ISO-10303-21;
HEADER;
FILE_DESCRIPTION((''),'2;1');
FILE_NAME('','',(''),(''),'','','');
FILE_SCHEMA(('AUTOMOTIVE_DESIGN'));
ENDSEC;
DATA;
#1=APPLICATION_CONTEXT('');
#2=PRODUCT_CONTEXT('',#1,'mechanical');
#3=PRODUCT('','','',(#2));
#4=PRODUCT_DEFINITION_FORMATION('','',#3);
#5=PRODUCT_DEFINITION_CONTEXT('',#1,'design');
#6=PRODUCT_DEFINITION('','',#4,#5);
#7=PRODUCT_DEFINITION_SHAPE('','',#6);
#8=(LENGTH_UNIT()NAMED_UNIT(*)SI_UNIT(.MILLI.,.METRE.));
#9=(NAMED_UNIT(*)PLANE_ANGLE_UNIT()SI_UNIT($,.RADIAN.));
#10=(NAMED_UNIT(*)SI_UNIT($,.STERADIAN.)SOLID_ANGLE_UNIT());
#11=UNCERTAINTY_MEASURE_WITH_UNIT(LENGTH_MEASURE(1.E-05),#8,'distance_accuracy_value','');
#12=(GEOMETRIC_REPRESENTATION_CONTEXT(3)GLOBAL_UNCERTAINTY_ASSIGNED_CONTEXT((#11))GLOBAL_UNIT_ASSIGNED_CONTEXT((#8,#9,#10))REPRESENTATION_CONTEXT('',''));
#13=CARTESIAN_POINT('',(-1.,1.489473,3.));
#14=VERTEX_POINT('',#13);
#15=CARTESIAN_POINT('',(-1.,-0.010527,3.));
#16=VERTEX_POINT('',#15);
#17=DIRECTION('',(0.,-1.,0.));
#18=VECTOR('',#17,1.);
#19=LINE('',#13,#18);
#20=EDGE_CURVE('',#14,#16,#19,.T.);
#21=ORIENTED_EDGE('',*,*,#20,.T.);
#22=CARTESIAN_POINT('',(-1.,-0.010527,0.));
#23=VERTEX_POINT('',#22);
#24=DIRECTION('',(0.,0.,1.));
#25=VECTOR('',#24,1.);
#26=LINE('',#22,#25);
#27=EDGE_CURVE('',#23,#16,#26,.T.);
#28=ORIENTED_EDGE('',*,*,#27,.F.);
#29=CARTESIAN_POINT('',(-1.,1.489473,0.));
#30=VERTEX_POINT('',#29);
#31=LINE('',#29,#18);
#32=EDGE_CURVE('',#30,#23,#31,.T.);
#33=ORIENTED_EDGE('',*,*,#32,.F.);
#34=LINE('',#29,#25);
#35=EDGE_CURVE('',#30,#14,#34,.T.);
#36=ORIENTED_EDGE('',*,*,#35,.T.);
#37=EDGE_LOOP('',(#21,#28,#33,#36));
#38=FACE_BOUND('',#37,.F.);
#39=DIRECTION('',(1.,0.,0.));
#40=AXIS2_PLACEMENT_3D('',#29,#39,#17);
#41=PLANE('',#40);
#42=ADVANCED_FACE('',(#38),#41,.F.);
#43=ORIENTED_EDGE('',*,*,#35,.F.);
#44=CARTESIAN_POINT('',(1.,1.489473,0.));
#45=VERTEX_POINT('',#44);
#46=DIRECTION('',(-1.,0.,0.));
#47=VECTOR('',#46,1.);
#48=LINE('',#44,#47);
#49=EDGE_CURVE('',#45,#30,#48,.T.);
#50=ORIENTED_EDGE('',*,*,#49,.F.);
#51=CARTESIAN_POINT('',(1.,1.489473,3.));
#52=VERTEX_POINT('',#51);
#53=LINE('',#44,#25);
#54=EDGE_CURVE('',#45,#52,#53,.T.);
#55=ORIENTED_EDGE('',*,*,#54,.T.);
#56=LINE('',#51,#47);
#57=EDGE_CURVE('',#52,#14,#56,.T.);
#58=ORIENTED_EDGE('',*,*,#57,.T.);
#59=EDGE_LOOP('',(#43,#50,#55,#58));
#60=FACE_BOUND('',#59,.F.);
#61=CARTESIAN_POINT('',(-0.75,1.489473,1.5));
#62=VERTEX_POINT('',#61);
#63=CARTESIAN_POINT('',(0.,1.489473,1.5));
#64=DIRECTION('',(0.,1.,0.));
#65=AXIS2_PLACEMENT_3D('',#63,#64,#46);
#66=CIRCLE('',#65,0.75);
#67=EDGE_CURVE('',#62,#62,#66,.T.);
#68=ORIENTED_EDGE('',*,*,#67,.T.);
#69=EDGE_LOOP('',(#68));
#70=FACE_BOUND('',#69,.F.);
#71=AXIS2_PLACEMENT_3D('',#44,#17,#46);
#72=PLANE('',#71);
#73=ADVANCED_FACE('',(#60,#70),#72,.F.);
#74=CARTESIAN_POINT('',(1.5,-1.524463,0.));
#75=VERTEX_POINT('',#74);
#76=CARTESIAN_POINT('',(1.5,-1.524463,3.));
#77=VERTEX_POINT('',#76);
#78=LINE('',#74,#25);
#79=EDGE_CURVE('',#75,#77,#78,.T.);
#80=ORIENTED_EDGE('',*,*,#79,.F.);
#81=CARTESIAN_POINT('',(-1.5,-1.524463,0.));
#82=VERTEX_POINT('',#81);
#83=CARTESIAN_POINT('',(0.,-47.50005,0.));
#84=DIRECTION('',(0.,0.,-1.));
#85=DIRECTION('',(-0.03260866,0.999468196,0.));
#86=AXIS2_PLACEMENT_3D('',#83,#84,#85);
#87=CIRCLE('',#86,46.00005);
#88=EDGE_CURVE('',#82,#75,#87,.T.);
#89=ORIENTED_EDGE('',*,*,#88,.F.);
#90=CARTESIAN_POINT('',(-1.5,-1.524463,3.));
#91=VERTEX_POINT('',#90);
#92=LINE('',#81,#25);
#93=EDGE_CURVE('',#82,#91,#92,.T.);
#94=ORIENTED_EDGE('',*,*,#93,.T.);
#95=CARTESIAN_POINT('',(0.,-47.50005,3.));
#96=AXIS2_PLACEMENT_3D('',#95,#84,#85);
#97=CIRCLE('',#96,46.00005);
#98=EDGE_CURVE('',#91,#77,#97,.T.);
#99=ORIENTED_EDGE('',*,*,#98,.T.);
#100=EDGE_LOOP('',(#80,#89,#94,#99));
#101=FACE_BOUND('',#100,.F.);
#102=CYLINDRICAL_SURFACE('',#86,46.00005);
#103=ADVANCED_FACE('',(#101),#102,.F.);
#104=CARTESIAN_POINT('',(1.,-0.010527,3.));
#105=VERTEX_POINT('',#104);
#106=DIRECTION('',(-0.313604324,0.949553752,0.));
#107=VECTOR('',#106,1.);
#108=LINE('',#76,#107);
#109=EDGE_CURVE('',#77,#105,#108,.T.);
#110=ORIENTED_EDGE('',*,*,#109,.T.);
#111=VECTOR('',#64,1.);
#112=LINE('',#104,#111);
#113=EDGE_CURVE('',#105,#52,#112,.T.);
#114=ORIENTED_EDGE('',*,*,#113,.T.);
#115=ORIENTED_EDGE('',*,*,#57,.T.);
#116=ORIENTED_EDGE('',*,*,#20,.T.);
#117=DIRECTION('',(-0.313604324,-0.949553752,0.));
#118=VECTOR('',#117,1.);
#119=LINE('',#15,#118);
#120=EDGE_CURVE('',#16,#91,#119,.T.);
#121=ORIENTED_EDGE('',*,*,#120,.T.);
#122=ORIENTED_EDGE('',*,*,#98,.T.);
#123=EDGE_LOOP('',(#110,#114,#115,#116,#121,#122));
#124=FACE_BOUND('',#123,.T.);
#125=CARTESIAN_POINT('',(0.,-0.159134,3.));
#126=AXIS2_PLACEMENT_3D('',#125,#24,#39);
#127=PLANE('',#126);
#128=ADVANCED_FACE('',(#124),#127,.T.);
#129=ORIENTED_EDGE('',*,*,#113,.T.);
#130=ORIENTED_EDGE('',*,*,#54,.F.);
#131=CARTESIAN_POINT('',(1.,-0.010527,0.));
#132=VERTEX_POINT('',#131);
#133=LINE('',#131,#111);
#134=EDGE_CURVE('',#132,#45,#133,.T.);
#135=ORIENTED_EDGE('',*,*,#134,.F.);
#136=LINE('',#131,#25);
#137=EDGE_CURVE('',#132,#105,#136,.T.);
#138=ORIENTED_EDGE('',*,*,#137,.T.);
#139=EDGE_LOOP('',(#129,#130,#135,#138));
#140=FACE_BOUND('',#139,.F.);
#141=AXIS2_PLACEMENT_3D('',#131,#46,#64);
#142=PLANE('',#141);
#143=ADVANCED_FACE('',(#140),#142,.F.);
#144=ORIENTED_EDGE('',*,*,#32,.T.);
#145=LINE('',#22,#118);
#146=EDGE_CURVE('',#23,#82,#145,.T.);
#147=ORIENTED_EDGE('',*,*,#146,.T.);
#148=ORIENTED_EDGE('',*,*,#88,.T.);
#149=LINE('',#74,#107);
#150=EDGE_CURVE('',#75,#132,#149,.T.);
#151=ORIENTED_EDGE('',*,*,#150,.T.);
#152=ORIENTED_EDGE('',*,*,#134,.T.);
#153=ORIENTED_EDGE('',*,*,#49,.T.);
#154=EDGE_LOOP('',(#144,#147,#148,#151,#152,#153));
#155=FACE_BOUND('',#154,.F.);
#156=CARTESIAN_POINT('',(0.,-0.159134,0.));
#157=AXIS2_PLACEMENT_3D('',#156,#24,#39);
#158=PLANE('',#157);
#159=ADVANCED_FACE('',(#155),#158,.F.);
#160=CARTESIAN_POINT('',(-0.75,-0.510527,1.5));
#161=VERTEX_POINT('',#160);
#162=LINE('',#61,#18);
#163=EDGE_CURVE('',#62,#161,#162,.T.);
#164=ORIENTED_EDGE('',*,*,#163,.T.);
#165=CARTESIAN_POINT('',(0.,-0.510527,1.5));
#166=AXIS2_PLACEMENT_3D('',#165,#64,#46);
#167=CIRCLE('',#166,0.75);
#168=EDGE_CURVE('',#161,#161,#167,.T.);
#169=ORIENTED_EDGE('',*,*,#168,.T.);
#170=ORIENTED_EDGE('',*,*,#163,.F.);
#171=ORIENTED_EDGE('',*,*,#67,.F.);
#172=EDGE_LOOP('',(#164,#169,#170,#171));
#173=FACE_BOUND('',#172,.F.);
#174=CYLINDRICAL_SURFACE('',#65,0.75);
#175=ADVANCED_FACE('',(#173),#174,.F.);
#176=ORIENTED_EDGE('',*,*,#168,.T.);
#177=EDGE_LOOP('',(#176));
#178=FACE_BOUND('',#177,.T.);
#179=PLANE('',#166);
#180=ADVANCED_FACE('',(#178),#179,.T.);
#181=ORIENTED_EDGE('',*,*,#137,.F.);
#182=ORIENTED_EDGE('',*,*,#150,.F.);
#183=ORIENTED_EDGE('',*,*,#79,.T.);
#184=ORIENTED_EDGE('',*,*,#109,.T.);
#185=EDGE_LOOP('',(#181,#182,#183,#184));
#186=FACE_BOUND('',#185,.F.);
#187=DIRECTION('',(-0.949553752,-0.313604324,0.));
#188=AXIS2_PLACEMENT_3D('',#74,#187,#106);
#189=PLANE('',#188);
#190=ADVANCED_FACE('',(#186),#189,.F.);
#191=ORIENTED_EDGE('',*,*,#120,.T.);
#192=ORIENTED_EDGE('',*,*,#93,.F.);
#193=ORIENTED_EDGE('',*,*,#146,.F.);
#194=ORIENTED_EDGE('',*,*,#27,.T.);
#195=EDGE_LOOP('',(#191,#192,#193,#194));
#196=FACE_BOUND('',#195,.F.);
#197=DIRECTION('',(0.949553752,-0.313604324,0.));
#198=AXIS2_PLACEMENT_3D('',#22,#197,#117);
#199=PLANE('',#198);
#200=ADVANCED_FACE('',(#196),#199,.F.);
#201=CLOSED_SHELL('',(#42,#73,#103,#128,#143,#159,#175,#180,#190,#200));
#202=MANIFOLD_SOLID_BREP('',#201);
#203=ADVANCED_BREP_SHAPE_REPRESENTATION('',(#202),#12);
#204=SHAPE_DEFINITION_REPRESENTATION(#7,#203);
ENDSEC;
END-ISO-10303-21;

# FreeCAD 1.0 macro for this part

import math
import FreeCAD as App
import Part
import Sketcher

V = App.Vector
Q = App.Units.Quantity

doc = App.newDocument("Part")
body = doc.addObject("PartDesign::Body", "Body")

sketch1 = body.newObject("Sketcher::SketchObject", "Sketch")
sketch1.AttachmentSupport = (doc.getObject("XY_Plane"), [""])
sketch1.MapMode = "FlatFace"
sketch1.addGeometry(Part.LineSegment(V(-1, 0, 0), V(-1.5, -1.5, 0)), False)
sketch1.addGeometry(Part.ArcOfCircle(Part.Circle(V(0, -47.5, 0), V(0, 0, 1), 46), math.radians(88.13), math.radians(91.87)), False)
sketch1.addGeometry(Part.LineSegment(V(1.5, -1.5, 0), V(1, 0, 0)), False)
sketch1.addGeometry(Part.LineSegment(V(1, 0, 0), V(1, 1.5, 0)), False)
sketch1.addGeometry(Part.LineSegment(V(1, 1.5, 0), V(-1, 1.5, 0)), False)
sketch1.addGeometry(Part.LineSegment(V(-1, 1.5, 0), V(-1, 0, 0)), False)
sketch1.addConstraint(Sketcher.Constraint("Coincident", 0, 2, 1, 2))
sketch1.addConstraint(Sketcher.Constraint("Coincident", 1, 1, 2, 1))
sketch1.addConstraint(Sketcher.Constraint("Coincident", 2, 2, 3, 1))
sketch1.addConstraint(Sketcher.Constraint("Coincident", 3, 2, 4, 1))
sketch1.addConstraint(Sketcher.Constraint("Coincident", 4, 2, 5, 1))
sketch1.addConstraint(Sketcher.Constraint("Coincident", 5, 2, 0, 1))
sketch1.addConstraint(Sketcher.Constraint("Vertical", 3))
sketch1.addConstraint(Sketcher.Constraint("Horizontal", 4))
sketch1.addConstraint(Sketcher.Constraint("Vertical", 5))
sketch1.addConstraint(Sketcher.Constraint("Symmetric", 0, 2, 1, 1, -2))
sketch1.addConstraint(Sketcher.Constraint("Symmetric", 2, 2, 5, 2, -2))
sketch1.addConstraint(Sketcher.Constraint("DistanceX", 4, 2, 4, 1, Q("2 mm")))
sketch1.addConstraint(Sketcher.Constraint("DistanceY", 3, 1, 3, 2, Q("1.5 mm")))
sketch1.addConstraint(Sketcher.Constraint("DistanceX", 0, 2, 1, 1, Q("3 mm")))
sketch1.addConstraint(Sketcher.Constraint("Radius", 1, Q("46.00005 mm")))
sketch1.addConstraint(Sketcher.Constraint("DistanceY", 1, 3, -1, 1, Q("47.50005 mm")))
sketch1.addConstraint(Sketcher.Constraint("Distance", 0, Q("1.594366 mm")))
pad1 = body.newObject("PartDesign::Pad", "Pad")
pad1.Profile = sketch1
pad1.Length = 3

sketch2 = body.newObject("Sketcher::SketchObject", "Sketch001")
sketch2.AttachmentSupport = (doc.getObject("XZ_Plane"), [""])
sketch2.MapMode = "FlatFace"
sketch2.AttachmentOffset = App.Placement(V(0, 0, -1.489473), App.Rotation())
sketch2.addGeometry(Part.Circle(V(0, 1.5, 0), V(0, 0, 1), 0.8), False)
sketch2.addConstraint(Sketcher.Constraint("PointOnObject", 0, 3, -2))
sketch2.addConstraint(Sketcher.Constraint("Diameter", 0, Q("1.5 mm")))
sketch2.addConstraint(Sketcher.Constraint("DistanceY", -1, 1, 0, 3, Q("1.5 mm")))
pocket1 = body.newObject("PartDesign::Pocket", "Pocket")
pocket1.Profile = sketch2
pocket1.Length = 2
pocket1.Reversed = True

doc.recompute()
